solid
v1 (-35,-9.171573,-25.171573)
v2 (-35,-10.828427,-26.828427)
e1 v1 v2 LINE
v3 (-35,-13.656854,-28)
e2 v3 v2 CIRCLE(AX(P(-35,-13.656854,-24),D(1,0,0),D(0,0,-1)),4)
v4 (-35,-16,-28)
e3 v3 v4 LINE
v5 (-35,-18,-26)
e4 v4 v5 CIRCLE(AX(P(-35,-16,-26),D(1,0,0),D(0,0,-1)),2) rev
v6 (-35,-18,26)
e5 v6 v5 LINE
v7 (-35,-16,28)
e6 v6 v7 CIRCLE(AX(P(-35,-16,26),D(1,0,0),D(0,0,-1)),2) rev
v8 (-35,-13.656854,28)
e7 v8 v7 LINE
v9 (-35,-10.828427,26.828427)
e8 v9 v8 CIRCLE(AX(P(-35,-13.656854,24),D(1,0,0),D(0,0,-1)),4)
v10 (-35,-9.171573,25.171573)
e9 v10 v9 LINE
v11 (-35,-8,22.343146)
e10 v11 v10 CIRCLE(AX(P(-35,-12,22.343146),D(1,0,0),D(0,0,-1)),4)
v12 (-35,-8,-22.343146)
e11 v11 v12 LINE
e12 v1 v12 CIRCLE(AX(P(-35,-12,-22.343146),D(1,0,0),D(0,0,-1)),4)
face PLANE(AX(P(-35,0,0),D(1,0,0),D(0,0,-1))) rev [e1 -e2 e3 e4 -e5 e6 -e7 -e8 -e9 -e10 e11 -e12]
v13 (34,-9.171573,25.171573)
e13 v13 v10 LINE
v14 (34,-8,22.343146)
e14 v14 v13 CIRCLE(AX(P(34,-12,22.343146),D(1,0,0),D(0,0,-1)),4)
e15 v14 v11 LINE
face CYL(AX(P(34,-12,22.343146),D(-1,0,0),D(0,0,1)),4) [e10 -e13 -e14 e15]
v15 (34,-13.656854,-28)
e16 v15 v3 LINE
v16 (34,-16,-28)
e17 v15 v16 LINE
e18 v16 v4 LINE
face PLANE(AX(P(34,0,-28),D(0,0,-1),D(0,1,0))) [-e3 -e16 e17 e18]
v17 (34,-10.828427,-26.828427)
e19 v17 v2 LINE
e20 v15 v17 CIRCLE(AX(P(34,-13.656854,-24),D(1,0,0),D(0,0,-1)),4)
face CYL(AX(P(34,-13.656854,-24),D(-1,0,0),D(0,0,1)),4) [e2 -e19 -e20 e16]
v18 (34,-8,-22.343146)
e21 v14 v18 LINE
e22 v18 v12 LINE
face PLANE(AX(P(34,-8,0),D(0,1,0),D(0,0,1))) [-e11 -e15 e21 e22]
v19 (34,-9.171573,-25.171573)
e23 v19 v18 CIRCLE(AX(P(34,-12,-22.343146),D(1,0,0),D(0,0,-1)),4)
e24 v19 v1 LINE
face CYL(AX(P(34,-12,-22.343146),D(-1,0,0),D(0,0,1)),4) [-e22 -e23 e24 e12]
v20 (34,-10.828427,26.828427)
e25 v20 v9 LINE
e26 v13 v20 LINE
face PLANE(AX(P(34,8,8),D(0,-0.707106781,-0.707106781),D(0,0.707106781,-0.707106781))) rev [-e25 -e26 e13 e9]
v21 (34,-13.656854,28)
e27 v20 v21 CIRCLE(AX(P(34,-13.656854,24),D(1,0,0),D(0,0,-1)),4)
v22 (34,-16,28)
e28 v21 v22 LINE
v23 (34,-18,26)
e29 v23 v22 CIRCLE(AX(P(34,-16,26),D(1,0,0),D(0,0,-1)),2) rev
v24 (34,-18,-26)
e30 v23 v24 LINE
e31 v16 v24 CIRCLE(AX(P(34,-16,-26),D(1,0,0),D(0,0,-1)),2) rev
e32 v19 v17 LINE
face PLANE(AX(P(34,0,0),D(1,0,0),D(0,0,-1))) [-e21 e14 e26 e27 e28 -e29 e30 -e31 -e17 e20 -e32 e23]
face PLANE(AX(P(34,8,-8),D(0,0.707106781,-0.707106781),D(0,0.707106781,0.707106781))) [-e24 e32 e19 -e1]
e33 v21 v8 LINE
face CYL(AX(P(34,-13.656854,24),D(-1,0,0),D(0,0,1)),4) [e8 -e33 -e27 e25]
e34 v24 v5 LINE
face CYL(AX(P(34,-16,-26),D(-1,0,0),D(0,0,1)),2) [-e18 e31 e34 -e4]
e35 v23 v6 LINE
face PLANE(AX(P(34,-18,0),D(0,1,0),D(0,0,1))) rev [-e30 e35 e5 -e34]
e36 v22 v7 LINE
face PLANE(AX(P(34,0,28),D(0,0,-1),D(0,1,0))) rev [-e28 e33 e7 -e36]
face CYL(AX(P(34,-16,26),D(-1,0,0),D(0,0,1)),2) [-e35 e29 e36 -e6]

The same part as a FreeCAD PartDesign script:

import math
import FreeCAD as App
import Part
import Sketcher
Q = App.Units.Quantity

doc = App.newDocument("Part")
body = doc.addObject("PartDesign::Body", "Body")

sketch1 = body.newObject("Sketcher::SketchObject", "Sketch")
sketch1.AttachmentSupport = (doc.getObject("YZ_Plane"), [""])
sketch1.MapMode = "FlatFace"
sketch1.AttachmentOffset = App.Placement(App.Vector(0, 0, -35), App.Rotation())
sketch1.addGeometry([
    Part.LineSegment(App.Vector(-16, -28, 0), App.Vector(-13.7, -28, 0)),
    Part.ArcOfCircle(Part.Circle(App.Vector(-13.7, -24, 0), App.Vector(0, 0, 1), 4), math.radians(-90), math.radians(-45)),
    Part.LineSegment(App.Vector(-10.8, -26.8, 0), App.Vector(-9.2, -25.2, 0)),
    Part.ArcOfCircle(Part.Circle(App.Vector(-12, -22.3, 0), App.Vector(0, 0, 1), 4), math.radians(-45), math.radians(0)),
    Part.LineSegment(App.Vector(-8, -22.3, 0), App.Vector(-8, 22.3, 0)),
    Part.ArcOfCircle(Part.Circle(App.Vector(-12, 22.3, 0), App.Vector(0, 0, 1), 4), math.radians(0), math.radians(45)),
    Part.LineSegment(App.Vector(-9.2, 25.2, 0), App.Vector(-10.8, 26.8, 0)),
    Part.ArcOfCircle(Part.Circle(App.Vector(-13.7, 24, 0), App.Vector(0, 0, 1), 4), math.radians(45), math.radians(90)),
    Part.LineSegment(App.Vector(-13.7, 28, 0), App.Vector(-16, 28, 0)),
    Part.ArcOfCircle(Part.Circle(App.Vector(-16, 26, 0), App.Vector(0, 0, 1), 2), math.radians(90), math.radians(180)),
    Part.LineSegment(App.Vector(-18, 26, 0), App.Vector(-18, -26, 0)),
    Part.ArcOfCircle(Part.Circle(App.Vector(-16, -26, 0), App.Vector(0, 0, 1), 2), math.radians(-180), math.radians(-90)),
], False)
sketch1.addConstraint([
    Sketcher.Constraint("Tangent", 0, 2, 1, 1),
    Sketcher.Constraint("Tangent", 1, 2, 2, 1),
    Sketcher.Constraint("Tangent", 2, 2, 3, 1),
    Sketcher.Constraint("Tangent", 3, 2, 4, 1),
    Sketcher.Constraint("Tangent", 4, 2, 5, 1),
    Sketcher.Constraint("Tangent", 5, 2, 6, 1),
    Sketcher.Constraint("Tangent", 6, 2, 7, 1),
    Sketcher.Constraint("Tangent", 7, 2, 8, 1),
    Sketcher.Constraint("Tangent", 8, 2, 9, 1),
    Sketcher.Constraint("Tangent", 9, 2, 10, 1),
    Sketcher.Constraint("Tangent", 10, 2, 11, 1),
    Sketcher.Constraint("Tangent", 11, 2, 0, 1),
    Sketcher.Constraint("Horizontal", 0),
    Sketcher.Constraint("Vertical", 4),
    Sketcher.Constraint("Horizontal", 8),
    Sketcher.Constraint("Vertical", 10),
    Sketcher.Constraint("Equal", 1, 3),
    Sketcher.Constraint("Equal", 3, 5),
    Sketcher.Constraint("Equal", 5, 7),
    Sketcher.Constraint("Equal", 9, 11),
    Sketcher.Constraint("Symmetric", 1, 3, 7, 3, -1),
    Sketcher.Constraint("Perpendicular", 2, 6),
    Sketcher.Constraint("Vertical", 2, 2, 5, 2),
    Sketcher.Constraint("Radius", 1, Q("4 mm")),
    Sketcher.Constraint("Radius", 9, Q("2 mm")),
    Sketcher.Constraint("DistanceY", 10, 2, 10, 1, Q("52 mm")),
    Sketcher.Constraint("DistanceX", 3, 3, -1, 1, Q("12 mm")),
    Sketcher.Constraint("DistanceX", 9, 3, -1, 1, Q("16 mm")),
    Sketcher.Constraint("DistanceY", 4, 1, 4, 2, Q("44.686292 mm")),
])
pad1 = body.newObject("PartDesign::Pad", "Pad")
pad1.Profile = sketch1
pad1.Length = 69

doc.recompute()
